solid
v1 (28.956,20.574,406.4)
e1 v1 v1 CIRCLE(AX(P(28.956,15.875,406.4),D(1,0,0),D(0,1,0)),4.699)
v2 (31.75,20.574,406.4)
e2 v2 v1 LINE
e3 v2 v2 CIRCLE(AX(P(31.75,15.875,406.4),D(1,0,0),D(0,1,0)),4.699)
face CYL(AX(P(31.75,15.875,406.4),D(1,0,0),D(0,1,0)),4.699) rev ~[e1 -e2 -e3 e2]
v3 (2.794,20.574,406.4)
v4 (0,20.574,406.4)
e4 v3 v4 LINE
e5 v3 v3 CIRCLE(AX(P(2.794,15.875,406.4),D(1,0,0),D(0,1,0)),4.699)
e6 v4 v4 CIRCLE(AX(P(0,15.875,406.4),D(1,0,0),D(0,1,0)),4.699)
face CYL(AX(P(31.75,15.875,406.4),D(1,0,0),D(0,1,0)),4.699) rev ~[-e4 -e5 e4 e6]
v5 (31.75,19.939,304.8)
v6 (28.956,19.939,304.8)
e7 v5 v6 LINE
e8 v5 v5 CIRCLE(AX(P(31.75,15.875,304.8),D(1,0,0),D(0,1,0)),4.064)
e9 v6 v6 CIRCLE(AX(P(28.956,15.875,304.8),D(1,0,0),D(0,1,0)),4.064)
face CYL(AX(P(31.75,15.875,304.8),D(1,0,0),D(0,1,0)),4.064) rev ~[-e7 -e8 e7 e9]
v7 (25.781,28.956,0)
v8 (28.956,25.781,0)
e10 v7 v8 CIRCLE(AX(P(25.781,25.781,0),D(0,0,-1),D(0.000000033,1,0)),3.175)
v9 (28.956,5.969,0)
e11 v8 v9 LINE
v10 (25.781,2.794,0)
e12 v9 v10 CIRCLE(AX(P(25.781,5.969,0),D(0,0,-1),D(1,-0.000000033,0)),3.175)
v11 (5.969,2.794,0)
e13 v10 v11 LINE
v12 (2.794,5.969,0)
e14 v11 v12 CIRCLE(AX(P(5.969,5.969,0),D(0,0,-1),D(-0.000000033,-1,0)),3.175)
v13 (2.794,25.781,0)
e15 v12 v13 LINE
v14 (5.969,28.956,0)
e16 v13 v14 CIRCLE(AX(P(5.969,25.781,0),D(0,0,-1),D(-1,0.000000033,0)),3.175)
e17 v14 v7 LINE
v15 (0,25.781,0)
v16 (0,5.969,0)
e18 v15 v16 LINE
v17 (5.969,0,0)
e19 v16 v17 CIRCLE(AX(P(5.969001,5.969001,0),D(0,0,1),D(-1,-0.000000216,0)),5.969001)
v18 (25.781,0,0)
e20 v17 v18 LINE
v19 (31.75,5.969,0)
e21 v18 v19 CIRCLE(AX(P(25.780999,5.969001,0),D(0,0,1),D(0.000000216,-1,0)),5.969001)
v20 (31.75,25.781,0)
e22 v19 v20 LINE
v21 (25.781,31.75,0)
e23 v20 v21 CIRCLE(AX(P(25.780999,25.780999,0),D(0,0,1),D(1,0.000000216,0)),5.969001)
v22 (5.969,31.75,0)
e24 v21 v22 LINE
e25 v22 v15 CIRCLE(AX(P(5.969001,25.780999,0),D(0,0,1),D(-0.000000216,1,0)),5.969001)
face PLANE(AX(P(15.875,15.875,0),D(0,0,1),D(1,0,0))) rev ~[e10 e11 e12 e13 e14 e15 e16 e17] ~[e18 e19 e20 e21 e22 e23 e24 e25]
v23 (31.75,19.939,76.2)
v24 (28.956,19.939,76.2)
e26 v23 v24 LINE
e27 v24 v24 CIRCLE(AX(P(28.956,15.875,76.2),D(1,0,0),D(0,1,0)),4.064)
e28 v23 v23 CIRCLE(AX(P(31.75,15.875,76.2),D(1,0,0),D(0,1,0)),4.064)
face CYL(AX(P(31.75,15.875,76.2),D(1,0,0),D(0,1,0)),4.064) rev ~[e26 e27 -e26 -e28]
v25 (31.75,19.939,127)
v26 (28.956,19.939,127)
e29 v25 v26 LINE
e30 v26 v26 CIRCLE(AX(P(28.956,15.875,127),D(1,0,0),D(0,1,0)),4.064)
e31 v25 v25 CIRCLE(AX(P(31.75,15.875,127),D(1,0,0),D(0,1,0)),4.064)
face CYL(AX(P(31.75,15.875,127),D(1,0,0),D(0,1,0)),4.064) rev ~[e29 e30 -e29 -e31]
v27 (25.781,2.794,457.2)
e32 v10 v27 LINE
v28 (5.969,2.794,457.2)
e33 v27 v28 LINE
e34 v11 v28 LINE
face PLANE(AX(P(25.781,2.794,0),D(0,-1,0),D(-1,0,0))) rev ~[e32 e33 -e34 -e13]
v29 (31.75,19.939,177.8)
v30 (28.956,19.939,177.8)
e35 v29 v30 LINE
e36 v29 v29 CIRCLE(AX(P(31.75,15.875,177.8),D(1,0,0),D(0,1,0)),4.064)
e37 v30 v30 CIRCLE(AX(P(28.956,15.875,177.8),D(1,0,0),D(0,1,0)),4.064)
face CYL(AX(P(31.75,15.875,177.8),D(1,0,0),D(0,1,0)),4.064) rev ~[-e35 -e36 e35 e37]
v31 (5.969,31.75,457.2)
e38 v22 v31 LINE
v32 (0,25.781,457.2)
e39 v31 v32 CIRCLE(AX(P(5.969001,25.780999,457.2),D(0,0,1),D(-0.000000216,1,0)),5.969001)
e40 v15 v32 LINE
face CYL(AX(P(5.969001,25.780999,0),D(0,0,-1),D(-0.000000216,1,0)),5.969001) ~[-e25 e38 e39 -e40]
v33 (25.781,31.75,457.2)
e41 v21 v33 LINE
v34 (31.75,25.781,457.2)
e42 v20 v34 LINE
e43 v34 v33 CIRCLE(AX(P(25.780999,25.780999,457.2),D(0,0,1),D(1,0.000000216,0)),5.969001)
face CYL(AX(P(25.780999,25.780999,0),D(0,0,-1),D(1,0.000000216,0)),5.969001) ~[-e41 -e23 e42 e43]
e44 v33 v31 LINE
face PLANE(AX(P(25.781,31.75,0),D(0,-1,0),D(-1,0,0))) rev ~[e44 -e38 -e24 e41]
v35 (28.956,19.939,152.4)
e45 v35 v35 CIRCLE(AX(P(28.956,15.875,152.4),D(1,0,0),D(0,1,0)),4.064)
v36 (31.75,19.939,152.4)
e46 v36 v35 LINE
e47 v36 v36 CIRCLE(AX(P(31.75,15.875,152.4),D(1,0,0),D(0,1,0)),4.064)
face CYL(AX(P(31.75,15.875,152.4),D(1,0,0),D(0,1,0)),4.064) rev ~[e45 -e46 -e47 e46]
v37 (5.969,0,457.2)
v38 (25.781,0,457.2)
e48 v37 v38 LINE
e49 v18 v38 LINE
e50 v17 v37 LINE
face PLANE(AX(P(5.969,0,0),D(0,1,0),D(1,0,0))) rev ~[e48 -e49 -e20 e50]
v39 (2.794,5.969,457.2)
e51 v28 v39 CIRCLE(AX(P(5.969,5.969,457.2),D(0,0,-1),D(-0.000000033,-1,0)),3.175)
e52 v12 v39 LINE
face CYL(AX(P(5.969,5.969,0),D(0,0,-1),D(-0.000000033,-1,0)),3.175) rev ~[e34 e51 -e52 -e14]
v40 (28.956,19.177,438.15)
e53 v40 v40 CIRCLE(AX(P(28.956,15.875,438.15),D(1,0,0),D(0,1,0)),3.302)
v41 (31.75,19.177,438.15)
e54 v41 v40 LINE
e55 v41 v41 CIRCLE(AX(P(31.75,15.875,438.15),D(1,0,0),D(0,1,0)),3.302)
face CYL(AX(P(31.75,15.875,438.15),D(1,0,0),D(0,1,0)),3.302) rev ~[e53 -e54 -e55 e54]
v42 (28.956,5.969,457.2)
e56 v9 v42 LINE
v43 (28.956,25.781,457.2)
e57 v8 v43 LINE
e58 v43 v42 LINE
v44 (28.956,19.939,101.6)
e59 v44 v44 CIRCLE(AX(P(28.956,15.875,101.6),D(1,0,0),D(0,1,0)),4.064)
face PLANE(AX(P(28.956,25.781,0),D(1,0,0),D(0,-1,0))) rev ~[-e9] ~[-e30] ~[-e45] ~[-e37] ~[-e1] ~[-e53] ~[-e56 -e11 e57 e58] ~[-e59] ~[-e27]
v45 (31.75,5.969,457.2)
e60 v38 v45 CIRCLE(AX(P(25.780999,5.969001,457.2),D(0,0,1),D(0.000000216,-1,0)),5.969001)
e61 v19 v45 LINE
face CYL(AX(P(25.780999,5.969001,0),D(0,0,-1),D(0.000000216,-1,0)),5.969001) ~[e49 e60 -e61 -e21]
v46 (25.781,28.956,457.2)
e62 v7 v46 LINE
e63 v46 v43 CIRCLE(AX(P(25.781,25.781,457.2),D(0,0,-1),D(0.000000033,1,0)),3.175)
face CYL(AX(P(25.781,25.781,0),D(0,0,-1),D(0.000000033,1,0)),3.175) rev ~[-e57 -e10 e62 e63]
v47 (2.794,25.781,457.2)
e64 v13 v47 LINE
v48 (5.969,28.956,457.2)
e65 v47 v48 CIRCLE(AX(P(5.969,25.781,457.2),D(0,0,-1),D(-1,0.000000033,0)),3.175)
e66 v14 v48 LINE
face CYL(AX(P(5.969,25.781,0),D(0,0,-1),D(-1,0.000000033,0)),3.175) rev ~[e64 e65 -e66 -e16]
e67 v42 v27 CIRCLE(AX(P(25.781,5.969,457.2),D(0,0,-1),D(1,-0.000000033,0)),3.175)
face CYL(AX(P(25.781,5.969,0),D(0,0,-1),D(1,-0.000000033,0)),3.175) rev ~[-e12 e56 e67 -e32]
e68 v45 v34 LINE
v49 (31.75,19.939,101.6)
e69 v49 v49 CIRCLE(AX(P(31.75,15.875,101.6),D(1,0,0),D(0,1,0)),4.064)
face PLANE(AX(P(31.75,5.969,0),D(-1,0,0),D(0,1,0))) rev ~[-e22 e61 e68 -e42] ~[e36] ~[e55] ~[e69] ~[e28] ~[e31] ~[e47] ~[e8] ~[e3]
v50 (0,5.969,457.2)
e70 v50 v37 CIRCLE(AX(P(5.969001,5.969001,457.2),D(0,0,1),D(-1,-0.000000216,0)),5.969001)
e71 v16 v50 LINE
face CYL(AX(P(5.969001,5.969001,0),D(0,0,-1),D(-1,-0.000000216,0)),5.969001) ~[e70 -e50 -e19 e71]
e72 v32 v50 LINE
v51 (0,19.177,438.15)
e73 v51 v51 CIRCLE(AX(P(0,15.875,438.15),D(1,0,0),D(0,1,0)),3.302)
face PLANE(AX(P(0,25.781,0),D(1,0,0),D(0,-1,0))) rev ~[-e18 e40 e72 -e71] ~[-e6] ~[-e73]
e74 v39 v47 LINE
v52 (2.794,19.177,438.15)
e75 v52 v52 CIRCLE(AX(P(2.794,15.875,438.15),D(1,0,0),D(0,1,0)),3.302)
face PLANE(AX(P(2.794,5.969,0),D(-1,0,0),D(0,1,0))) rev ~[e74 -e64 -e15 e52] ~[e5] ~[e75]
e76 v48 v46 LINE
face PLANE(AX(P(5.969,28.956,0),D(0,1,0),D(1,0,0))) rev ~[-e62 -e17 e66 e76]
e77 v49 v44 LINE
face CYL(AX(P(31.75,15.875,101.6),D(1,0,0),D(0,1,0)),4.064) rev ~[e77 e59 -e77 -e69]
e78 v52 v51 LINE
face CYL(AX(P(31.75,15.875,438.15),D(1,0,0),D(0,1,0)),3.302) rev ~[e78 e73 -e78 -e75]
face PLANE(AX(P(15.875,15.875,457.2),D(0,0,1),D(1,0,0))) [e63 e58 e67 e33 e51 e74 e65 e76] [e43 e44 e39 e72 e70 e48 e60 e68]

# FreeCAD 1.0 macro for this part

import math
import FreeCAD as App
import Part
import Sketcher

V = App.Vector
Q = App.Units.Quantity

doc = App.newDocument("Part")
params = doc.addObject("Spreadsheet::Sheet", "Params")
for row, (alias, value) in enumerate([
    ("sketch1_radius", "0.2350001 in"),
    ("sketch1_radius2", "0.125 in"),
    ("sketch1_width", "0.78 in"),
    ("pad1_length", "18 in"),
    ("sketch2_diameter", "0.26 in"),
    ("sketch2_diameter2", "0.37 in"),
    ("sketch3_diameter", "0.32 in"),
    ("pocket2_length", "0.11 in"),
], start=1):
    params.set(f"A{row}", alias)
    params.set(f"B{row}", "=" + value)
    params.setAlias(f"B{row}", alias)

body = doc.addObject("PartDesign::Body", "Body")

sketch1 = body.newObject("Sketcher::SketchObject", "Sketch")
sketch1.AttachmentSupport = (doc.getObject("XY_Plane"), [""])
sketch1.MapMode = "FlatFace"
sketch1.addGeometry([
    Part.ArcOfCircle(Part.Circle(V(6, 6, 0), V(0, 0, 1), 6), math.radians(-180), math.radians(-90)),
    Part.LineSegment(V(6, 0, 0), V(25.8, 0, 0)),
    Part.ArcOfCircle(Part.Circle(V(25.8, 6, 0), V(0, 0, 1), 6), math.radians(-90), math.radians(0)),
    Part.LineSegment(V(31.8, 6, 0), V(31.8, 25.8, 0)),
    Part.ArcOfCircle(Part.Circle(V(25.8, 25.8, 0), V(0, 0, 1), 6), math.radians(0), math.radians(90)),
    Part.LineSegment(V(25.8, 31.8, 0), V(6, 31.8, 0)),
    Part.ArcOfCircle(Part.Circle(V(6, 25.8, 0), V(0, 0, 1), 6), math.radians(90), math.radians(180)),
    Part.LineSegment(V(0, 25.8, 0), V(0, 6, 0)),
    Part.LineSegment(V(25.8, 2.8, 0), V(6, 2.8, 0)),
    Part.ArcOfCircle(Part.Circle(V(6, 6, 0), V(0, 0, 1), 3.2), math.radians(-180), math.radians(-90)),
    Part.LineSegment(V(2.8, 6, 0), V(2.8, 25.8, 0)),
    Part.ArcOfCircle(Part.Circle(V(6, 25.8, 0), V(0, 0, 1), 3.2), math.radians(90), math.radians(180)),
    Part.LineSegment(V(6, 29, 0), V(25.8, 29, 0)),
    Part.ArcOfCircle(Part.Circle(V(25.8, 25.8, 0), V(0, 0, 1), 3.2), math.radians(0), math.radians(90)),
    Part.LineSegment(V(29, 25.8, 0), V(29, 6, 0)),
    Part.ArcOfCircle(Part.Circle(V(25.8, 6, 0), V(0, 0, 1), 3.2), math.radians(-90), math.radians(0)),
], False)
sketch1.addConstraint([
    Sketcher.Constraint("Tangent", 0, 2, 1, 1),
    Sketcher.Constraint("Tangent", 1, 2, 2, 1),
    Sketcher.Constraint("Tangent", 2, 2, 3, 1),
    Sketcher.Constraint("Tangent", 3, 2, 4, 1),
    Sketcher.Constraint("Tangent", 4, 2, 5, 1),
    Sketcher.Constraint("Tangent", 5, 2, 6, 1),
    Sketcher.Constraint("Tangent", 6, 2, 7, 1),
    Sketcher.Constraint("Tangent", 7, 2, 0, 1),
    Sketcher.Constraint("Tangent", 8, 2, 9, 2),
    Sketcher.Constraint("Tangent", 9, 1, 10, 1),
    Sketcher.Constraint("Tangent", 10, 2, 11, 2),
    Sketcher.Constraint("Tangent", 11, 1, 12, 1),
    Sketcher.Constraint("Tangent", 12, 2, 13, 2),
    Sketcher.Constraint("Tangent", 13, 1, 14, 1),
    Sketcher.Constraint("Tangent", 14, 2, 15, 2),
    Sketcher.Constraint("Tangent", 15, 1, 8, 1),
    Sketcher.Constraint("Horizontal", 1),
    Sketcher.Constraint("Vertical", 3),
    Sketcher.Constraint("Horizontal", 5),
    Sketcher.Constraint("Vertical", 7),
    Sketcher.Constraint("Horizontal", 8),
    Sketcher.Constraint("Vertical", 10),
    Sketcher.Constraint("Horizontal", 12),
    Sketcher.Constraint("Vertical", 14),
    Sketcher.Constraint("Coincident", 9, 3, 0, 3),
    Sketcher.Constraint("Coincident", 11, 3, 6, 3),
    Sketcher.Constraint("Coincident", 13, 3, 4, 3),
    Sketcher.Constraint("Equal", 0, 2),
    Sketcher.Constraint("Equal", 2, 4),
    Sketcher.Constraint("Equal", 4, 6),
    Sketcher.Constraint("Equal", 13, 15),
    Sketcher.Constraint("PointOnObject", 0, 2, -1),
    Sketcher.Constraint("PointOnObject", 6, 2, -2),
    Sketcher.Constraint("Equal", 12, 3),
    Sketcher.Constraint("Radius", 0, Q("0.2350001 in")),
    Sketcher.Constraint("Radius", 9, Q("0.125 in")),
    Sketcher.Constraint("DistanceX", 1, 1, 1, 2, Q("0.78 in")),
])
sketch1.setExpression("Constraints[34]", "Params.sketch1_radius")
sketch1.setExpression("Constraints[35]", "Params.sketch1_radius2")
sketch1.setExpression("Constraints[36]", "Params.sketch1_width")
pad1 = body.newObject("PartDesign::Pad", "Pad")
pad1.Profile = sketch1
pad1.setExpression("Length", "Params.pad1_length")

sketch2 = body.newObject("Sketcher::SketchObject", "Sketch001")
sketch2.AttachmentSupport = (doc.getObject("YZ_Plane"), [""])
sketch2.MapMode = "FlatFace"
sketch2.AttachmentOffset = App.Placement(V(0, 0, 1.25 * 25.4), App.Rotation())
sketch2.addGeometry([
    Part.Circle(V(15.9, 438.1, 0), V(0, 0, 1), 3.3),
    Part.Circle(V(15.9, 406.4, 0), V(0, 0, 1), 4.7),
], False)
sketch2.addConstraint([
    Sketcher.Constraint("Vertical", 0, 3, 1, 3),
    Sketcher.Constraint("Diameter", 0, Q("0.26 in")),
    Sketcher.Constraint("Diameter", 1, Q("0.37 in")),
    Sketcher.Constraint("DistanceY", -1, 1, 1, 3, Q("16 in")),
    Sketcher.Constraint("DistanceY", -1, 1, 0, 3, Q("17.25 in")),
    Sketcher.Constraint("DistanceX", -1, 1, 0, 3, Q("0.625 in")),
])
sketch2.setExpression("Constraints[1]", "Params.sketch2_diameter")
sketch2.setExpression("Constraints[2]", "Params.sketch2_diameter2")
pocket1 = body.newObject("PartDesign::Pocket", "Pocket")
pocket1.Profile = sketch2
pocket1.Type = "ThroughAll"

sketch3 = body.newObject("Sketcher::SketchObject", "Sketch002")
sketch3.AttachmentSupport = (doc.getObject("YZ_Plane"), [""])
sketch3.MapMode = "FlatFace"
sketch3.AttachmentOffset = App.Placement(V(0, 0, 1.25 * 25.4), App.Rotation())
sketch3.addGeometry([
    Part.Circle(V(15.9, 76.2, 0), V(0, 0, 1), 4.1),
    Part.Circle(V(15.9, 101.6, 0), V(0, 0, 1), 4.1),
    Part.Circle(V(15.9, 127, 0), V(0, 0, 1), 4.1),
    Part.Circle(V(15.9, 152.4, 0), V(0, 0, 1), 4.1),
    Part.Circle(V(15.9, 177.8, 0), V(0, 0, 1), 4.1),
    Part.Circle(V(15.9, 304.8, 0), V(0, 0, 1), 4.1),
], False)
sketch3.addConstraint([
    Sketcher.Constraint("Equal", 0, 1),
    Sketcher.Constraint("Equal", 1, 2),
    Sketcher.Constraint("Equal", 2, 3),
    Sketcher.Constraint("Equal", 3, 4),
    Sketcher.Constraint("Equal", 4, 5),
    Sketcher.Constraint("Vertical", 0, 3, 1, 3),
    Sketcher.Constraint("Vertical", 1, 3, 2, 3),
    Sketcher.Constraint("Vertical", 2, 3, 3, 3),
    Sketcher.Constraint("Vertical", 3, 3, 4, 3),
    Sketcher.Constraint("Vertical", 4, 3, 5, 3),
    Sketcher.Constraint("Diameter", 0, Q("0.32 in")),
    Sketcher.Constraint("DistanceY", -1, 1, 0, 3, Q("3 in")),
    Sketcher.Constraint("DistanceY", -1, 1, 1, 3, Q("4 in")),
    Sketcher.Constraint("DistanceY", -1, 1, 2, 3, Q("5 in")),
    Sketcher.Constraint("DistanceY", -1, 1, 3, 3, Q("6 in")),
    Sketcher.Constraint("DistanceY", -1, 1, 4, 3, Q("7 in")),
    Sketcher.Constraint("DistanceY", -1, 1, 5, 3, Q("12 in")),
    Sketcher.Constraint("DistanceX", -1, 1, 0, 3, Q("0.625 in")),
])
sketch3.setExpression("Constraints[10]", "Params.sketch3_diameter")
pocket2 = body.newObject("PartDesign::Pocket", "Pocket001")
pocket2.Profile = sketch3
pocket2.setExpression("Length", "Params.pocket2_length")

doc.recompute()
